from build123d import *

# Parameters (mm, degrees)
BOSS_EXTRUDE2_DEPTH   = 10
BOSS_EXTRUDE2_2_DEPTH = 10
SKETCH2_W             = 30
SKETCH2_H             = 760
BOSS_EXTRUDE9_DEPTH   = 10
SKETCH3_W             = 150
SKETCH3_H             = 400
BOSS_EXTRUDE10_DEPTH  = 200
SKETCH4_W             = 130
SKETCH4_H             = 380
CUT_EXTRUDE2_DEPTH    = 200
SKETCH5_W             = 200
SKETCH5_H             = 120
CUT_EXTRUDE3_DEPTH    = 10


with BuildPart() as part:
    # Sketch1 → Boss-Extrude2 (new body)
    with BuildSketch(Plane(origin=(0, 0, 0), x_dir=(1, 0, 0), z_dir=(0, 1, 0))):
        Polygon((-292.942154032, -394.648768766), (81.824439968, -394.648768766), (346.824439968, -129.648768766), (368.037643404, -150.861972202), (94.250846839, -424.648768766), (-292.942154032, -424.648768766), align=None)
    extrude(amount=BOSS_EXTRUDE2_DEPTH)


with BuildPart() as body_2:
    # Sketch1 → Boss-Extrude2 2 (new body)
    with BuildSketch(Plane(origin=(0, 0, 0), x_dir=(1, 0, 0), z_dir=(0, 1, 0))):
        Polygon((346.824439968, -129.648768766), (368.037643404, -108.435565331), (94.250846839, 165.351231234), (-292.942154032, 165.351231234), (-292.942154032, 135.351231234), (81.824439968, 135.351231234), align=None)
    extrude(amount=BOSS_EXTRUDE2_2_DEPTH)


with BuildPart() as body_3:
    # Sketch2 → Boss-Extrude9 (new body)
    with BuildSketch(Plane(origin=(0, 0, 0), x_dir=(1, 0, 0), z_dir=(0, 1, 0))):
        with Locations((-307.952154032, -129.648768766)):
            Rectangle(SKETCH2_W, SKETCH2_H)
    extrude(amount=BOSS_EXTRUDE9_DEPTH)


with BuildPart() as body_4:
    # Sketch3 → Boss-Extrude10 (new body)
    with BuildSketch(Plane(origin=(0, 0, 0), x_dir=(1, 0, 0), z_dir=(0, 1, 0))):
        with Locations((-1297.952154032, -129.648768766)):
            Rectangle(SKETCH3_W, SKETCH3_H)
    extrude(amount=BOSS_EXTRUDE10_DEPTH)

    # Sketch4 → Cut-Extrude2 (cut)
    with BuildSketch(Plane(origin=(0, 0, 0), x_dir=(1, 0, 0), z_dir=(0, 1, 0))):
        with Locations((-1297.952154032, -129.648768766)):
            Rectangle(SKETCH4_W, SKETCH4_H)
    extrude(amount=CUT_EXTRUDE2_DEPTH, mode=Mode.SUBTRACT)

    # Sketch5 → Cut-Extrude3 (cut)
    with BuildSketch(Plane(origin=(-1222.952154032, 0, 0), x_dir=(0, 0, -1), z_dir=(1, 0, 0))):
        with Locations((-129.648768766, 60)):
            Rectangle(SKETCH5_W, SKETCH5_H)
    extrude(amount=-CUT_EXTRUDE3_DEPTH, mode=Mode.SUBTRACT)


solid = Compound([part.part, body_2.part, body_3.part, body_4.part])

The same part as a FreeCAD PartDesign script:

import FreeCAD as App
import Part
import Sketcher

V = App.Vector
Q = App.Units.Quantity


def add_polygon(sketch, points):
    """Adds a closed chain of lines whose ends are joined by coincident constraints."""
    first, n = sketch.GeometryCount, len(points)
    for a, b in zip(points, points[1:] + points[:1]):
        sketch.addGeometry(Part.LineSegment(App.Vector(*a, 0), App.Vector(*b, 0)), False)
    for i in range(n):
        sketch.addConstraint(Sketcher.Constraint("Coincident", first + i, 2, first + (i + 1) % n, 1))

doc = App.newDocument("Part")
body = doc.addObject("PartDesign::Body", "Body")

# Sketch on XZ plane
sketch1 = body.newObject("Sketcher::SketchObject", "Sketch")
sketch1.AttachmentSupport = (doc.getObject("XZ_Plane"), [""])
sketch1.MapMode = "FlatFace"
add_polygon(sketch1, [(82, 395), (-293, 395), (-293, 425), (94, 425), (368, 151), (347, 130)])  # lines 0-5
sketch1.addConstraint([
    Sketcher.Constraint("Horizontal", 0),
    Sketcher.Constraint("Vertical", 1),
    Sketcher.Constraint("Horizontal", 2),
    Sketcher.Constraint("Perpendicular", 3, 4),
    Sketcher.Constraint("Perpendicular", 4, 5),
    Sketcher.Constraint("DistanceY", 1, 1, 1, 2, 30.0),
    Sketcher.Constraint("Angle", 3, Q("-45 deg")),
    Sketcher.Constraint("Distance", 4, 30.0),
    Sketcher.Constraint("DistanceY", 4, 2, 2, 2, 295.0),
    Sketcher.Constraint("DistanceX", 2, 1, 2, 2, 387.193001),
    Sketcher.Constraint("DistanceY", -1, 1, 0, 2, 394.648769),
    Sketcher.Constraint("DistanceX", -1, 1, 4, 2, 346.82444),
])
pad1 = body.newObject("PartDesign::Pad", "Pad")
pad1.Profile = sketch1
pad1.Length = 10
pad1.Reversed = True
body2 = doc.addObject("PartDesign::Body", "Body001")

# Sketch on XZ plane
sketch2 = body2.newObject("Sketcher::SketchObject", "Sketch001")
sketch2.AttachmentSupport = (doc.getObject("XZ_Plane001"), [""])
sketch2.MapMode = "FlatFace"
add_polygon(sketch2, [(347, 130), (368, 108), (94, -165), (-293, -165), (-293, -135), (82, -135)])  # lines 0-5
sketch2.addConstraint([
    Sketcher.Constraint("Horizontal", 2),
    Sketcher.Constraint("Vertical", 3),
    Sketcher.Constraint("Horizontal", 4),
    Sketcher.Constraint("Perpendicular", 0, 1),
    Sketcher.Constraint("Parallel", 1, 5),
    Sketcher.Constraint("DistanceY", 3, 1, 3, 2, 30.0),
    Sketcher.Constraint("Angle", 0, Q("-45 deg")),
    Sketcher.Constraint("Distance", 0, 30.0),
    Sketcher.Constraint("DistanceX", 4, 2, 5, 2, 265.0),
    Sketcher.Constraint("DistanceX", 2, 2, 2, 1, 387.193001),
    Sketcher.Constraint("DistanceY", 1, 2, -1, 1, 165.351231),
    Sketcher.Constraint("DistanceX", -1, 1, 4, 2, 81.82444),
])
pad2 = body2.newObject("PartDesign::Pad", "Pad001")
pad2.Profile = sketch2
pad2.Length = 10
pad2.Reversed = True
body3 = doc.addObject("PartDesign::Body", "Body002")

# Sketch on XZ plane
sketch3 = body3.newObject("Sketcher::SketchObject", "Sketch002")
sketch3.AttachmentSupport = (doc.getObject("XZ_Plane002"), [""])
sketch3.MapMode = "FlatFace"
add_polygon(sketch3, [(-323, -250), (-323, 510), (-293, 510), (-293, -250)])  # lines 0-3
sketch3.addConstraint([
    Sketcher.Constraint("Vertical", 0),
    Sketcher.Constraint("Horizontal", 1),
    Sketcher.Constraint("Vertical", 2),
    Sketcher.Constraint("Horizontal", 3),
    Sketcher.Constraint("DistanceX", 1, 1, 1, 2, 30.0),
    Sketcher.Constraint("DistanceY", 0, 1, 0, 2, 760.0),
    Sketcher.Constraint("DistanceY", -1, 1, 0, 2, 509.648769),
    Sketcher.Constraint("DistanceX", 0, 2, -1, 1, 322.952154),
])
pad3 = body3.newObject("PartDesign::Pad", "Pad002")
pad3.Profile = sketch3
pad3.Length = 10
pad3.Reversed = True
body4 = doc.addObject("PartDesign::Body", "Body003")

# Sketch on XZ plane
sketch4 = body4.newObject("Sketcher::SketchObject", "Sketch003")
sketch4.AttachmentSupport = (doc.getObject("XZ_Plane003"), [""])
sketch4.MapMode = "FlatFace"
add_polygon(sketch4, [(-1373, -70), (-1373, 330), (-1223, 330), (-1223, -70)])  # lines 0-3
sketch4.addConstraint([
    Sketcher.Constraint("Vertical", 0),
    Sketcher.Constraint("Horizontal", 1),
    Sketcher.Constraint("Vertical", 2),
    Sketcher.Constraint("Horizontal", 3),
    Sketcher.Constraint("DistanceX", 1, 1, 1, 2, 150.0),
    Sketcher.Constraint("DistanceY", 0, 1, 0, 2, 400.0),
    Sketcher.Constraint("DistanceY", -1, 1, 0, 2, 329.648769),
    Sketcher.Constraint("DistanceX", 0, 2, -1, 1, 1372.952154),
])
pad4 = body4.newObject("PartDesign::Pad", "Pad003")
pad4.Profile = sketch4
pad4.Length = 200
pad4.Reversed = True

# Sketch on XZ plane
sketch5 = body4.newObject("Sketcher::SketchObject", "Sketch004")
sketch5.AttachmentSupport = (doc.getObject("XZ_Plane003"), [""])
sketch5.MapMode = "FlatFace"
add_polygon(sketch5, [(-1363, -60), (-1363, 320), (-1233, 320), (-1233, -60)])  # lines 0-3
sketch5.addConstraint([
    Sketcher.Constraint("Vertical", 0),
    Sketcher.Constraint("Horizontal", 1),
    Sketcher.Constraint("Vertical", 2),
    Sketcher.Constraint("Horizontal", 3),
    Sketcher.Constraint("DistanceX", 1, 1, 1, 2, 130.0),
    Sketcher.Constraint("DistanceY", 0, 1, 0, 2, 380.0),
    Sketcher.Constraint("DistanceY", -1, 1, 0, 2, 319.648769),
    Sketcher.Constraint("DistanceX", 0, 2, -1, 1, 1362.952154),
])
pocket1 = body4.newObject("PartDesign::Pocket", "Pocket")
pocket1.Profile = sketch5
pocket1.Length = 200

# Sketch on YZ plane
sketch6 = body4.newObject("Sketcher::SketchObject", "Sketch005")
sketch6.AttachmentSupport = (doc.getObject("YZ_Plane003"), [""])
sketch6.MapMode = "FlatFace"
sketch6.AttachmentOffset = App.Placement(V(0, 0, -1222.952154), App.Rotation())
add_polygon(sketch6, [(120, 230), (0, 230), (0, 30), (120, 30)])  # lines 0-3
sketch6.addConstraint([
    Sketcher.Constraint("Horizontal", 0),
    Sketcher.Constraint("Vertical", 1),
    Sketcher.Constraint("Horizontal", 2),
    Sketcher.Constraint("Vertical", 3),
    Sketcher.Constraint("PointOnObject", 0, 2, -2),
    Sketcher.Constraint("DistanceX", 0, 2, 0, 1, 120.0),
    Sketcher.Constraint("DistanceY", 1, 2, 1, 1, 200.0),
    Sketcher.Constraint("DistanceY", -1, 1, 0, 2, 229.648769),
])
pocket2 = body4.newObject("PartDesign::Pocket", "Pocket001")
pocket2.Profile = sketch6
pocket2.Length = 10

doc.recompute()
